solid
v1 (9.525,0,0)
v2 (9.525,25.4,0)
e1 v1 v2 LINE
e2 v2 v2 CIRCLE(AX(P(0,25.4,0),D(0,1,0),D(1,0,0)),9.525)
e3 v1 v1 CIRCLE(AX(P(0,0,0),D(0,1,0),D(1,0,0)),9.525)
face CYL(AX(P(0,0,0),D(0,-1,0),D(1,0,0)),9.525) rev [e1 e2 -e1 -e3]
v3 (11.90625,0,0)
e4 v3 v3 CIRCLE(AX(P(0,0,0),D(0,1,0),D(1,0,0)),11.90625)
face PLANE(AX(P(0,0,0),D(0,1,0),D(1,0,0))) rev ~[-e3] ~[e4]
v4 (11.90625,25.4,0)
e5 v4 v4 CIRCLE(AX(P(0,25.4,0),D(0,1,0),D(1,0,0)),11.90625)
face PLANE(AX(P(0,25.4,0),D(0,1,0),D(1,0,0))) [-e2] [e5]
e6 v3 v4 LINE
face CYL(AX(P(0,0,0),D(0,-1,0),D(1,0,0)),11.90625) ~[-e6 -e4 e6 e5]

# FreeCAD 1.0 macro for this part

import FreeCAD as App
import Part
import Sketcher
from FreeCAD import Vector
Q = App.Units.Quantity

doc = App.newDocument("Part")
params = doc.addObject("Spreadsheet::Sheet", "Params")
for row, (alias, value) in enumerate([
    ("sketch1_diameter", "0.75 in"),
    ("sketch1_diameter2", "0.9375 in"),
    ("pad1_length", "1 in"),
], start=1):
    params.set(f"A{row}", alias)
    params.set(f"B{row}", "=" + value)
    params.setAlias(f"B{row}", alias)

body = doc.addObject("PartDesign::Body", "Body")

# Sketch on XZ plane
sketch1 = body.newObject("Sketcher::SketchObject", "Sketch")
sketch1.AttachmentSupport = (doc.getObject("XZ_Plane"), [""])
sketch1.MapMode = "FlatFace"
sketch1.addGeometry([
    Part.Circle(Vector(0, 0, 0), Vector(0, 0, 1), 12),
    Part.Circle(Vector(0, 0, 0), Vector(0, 0, 1), 10),
], False)
sketch1.addConstraint([
    Sketcher.Constraint("Coincident", 0, 3, -1, 1),
    Sketcher.Constraint("Coincident", 1, 3, -1, 1),
    Sketcher.Constraint("Diameter", 1, Q("0.75 in")),
    Sketcher.Constraint("Diameter", 0, Q("0.9375 in")),
])
sketch1.setExpression("Constraints[2]", "Params.sketch1_diameter")
sketch1.setExpression("Constraints[3]", "Params.sketch1_diameter2")
pad1 = body.newObject("PartDesign::Pad", "Pad")
pad1.Profile = sketch1
pad1.setExpression("Length", "Params.pad1_length")
pad1.Reversed = True

doc.recompute()
